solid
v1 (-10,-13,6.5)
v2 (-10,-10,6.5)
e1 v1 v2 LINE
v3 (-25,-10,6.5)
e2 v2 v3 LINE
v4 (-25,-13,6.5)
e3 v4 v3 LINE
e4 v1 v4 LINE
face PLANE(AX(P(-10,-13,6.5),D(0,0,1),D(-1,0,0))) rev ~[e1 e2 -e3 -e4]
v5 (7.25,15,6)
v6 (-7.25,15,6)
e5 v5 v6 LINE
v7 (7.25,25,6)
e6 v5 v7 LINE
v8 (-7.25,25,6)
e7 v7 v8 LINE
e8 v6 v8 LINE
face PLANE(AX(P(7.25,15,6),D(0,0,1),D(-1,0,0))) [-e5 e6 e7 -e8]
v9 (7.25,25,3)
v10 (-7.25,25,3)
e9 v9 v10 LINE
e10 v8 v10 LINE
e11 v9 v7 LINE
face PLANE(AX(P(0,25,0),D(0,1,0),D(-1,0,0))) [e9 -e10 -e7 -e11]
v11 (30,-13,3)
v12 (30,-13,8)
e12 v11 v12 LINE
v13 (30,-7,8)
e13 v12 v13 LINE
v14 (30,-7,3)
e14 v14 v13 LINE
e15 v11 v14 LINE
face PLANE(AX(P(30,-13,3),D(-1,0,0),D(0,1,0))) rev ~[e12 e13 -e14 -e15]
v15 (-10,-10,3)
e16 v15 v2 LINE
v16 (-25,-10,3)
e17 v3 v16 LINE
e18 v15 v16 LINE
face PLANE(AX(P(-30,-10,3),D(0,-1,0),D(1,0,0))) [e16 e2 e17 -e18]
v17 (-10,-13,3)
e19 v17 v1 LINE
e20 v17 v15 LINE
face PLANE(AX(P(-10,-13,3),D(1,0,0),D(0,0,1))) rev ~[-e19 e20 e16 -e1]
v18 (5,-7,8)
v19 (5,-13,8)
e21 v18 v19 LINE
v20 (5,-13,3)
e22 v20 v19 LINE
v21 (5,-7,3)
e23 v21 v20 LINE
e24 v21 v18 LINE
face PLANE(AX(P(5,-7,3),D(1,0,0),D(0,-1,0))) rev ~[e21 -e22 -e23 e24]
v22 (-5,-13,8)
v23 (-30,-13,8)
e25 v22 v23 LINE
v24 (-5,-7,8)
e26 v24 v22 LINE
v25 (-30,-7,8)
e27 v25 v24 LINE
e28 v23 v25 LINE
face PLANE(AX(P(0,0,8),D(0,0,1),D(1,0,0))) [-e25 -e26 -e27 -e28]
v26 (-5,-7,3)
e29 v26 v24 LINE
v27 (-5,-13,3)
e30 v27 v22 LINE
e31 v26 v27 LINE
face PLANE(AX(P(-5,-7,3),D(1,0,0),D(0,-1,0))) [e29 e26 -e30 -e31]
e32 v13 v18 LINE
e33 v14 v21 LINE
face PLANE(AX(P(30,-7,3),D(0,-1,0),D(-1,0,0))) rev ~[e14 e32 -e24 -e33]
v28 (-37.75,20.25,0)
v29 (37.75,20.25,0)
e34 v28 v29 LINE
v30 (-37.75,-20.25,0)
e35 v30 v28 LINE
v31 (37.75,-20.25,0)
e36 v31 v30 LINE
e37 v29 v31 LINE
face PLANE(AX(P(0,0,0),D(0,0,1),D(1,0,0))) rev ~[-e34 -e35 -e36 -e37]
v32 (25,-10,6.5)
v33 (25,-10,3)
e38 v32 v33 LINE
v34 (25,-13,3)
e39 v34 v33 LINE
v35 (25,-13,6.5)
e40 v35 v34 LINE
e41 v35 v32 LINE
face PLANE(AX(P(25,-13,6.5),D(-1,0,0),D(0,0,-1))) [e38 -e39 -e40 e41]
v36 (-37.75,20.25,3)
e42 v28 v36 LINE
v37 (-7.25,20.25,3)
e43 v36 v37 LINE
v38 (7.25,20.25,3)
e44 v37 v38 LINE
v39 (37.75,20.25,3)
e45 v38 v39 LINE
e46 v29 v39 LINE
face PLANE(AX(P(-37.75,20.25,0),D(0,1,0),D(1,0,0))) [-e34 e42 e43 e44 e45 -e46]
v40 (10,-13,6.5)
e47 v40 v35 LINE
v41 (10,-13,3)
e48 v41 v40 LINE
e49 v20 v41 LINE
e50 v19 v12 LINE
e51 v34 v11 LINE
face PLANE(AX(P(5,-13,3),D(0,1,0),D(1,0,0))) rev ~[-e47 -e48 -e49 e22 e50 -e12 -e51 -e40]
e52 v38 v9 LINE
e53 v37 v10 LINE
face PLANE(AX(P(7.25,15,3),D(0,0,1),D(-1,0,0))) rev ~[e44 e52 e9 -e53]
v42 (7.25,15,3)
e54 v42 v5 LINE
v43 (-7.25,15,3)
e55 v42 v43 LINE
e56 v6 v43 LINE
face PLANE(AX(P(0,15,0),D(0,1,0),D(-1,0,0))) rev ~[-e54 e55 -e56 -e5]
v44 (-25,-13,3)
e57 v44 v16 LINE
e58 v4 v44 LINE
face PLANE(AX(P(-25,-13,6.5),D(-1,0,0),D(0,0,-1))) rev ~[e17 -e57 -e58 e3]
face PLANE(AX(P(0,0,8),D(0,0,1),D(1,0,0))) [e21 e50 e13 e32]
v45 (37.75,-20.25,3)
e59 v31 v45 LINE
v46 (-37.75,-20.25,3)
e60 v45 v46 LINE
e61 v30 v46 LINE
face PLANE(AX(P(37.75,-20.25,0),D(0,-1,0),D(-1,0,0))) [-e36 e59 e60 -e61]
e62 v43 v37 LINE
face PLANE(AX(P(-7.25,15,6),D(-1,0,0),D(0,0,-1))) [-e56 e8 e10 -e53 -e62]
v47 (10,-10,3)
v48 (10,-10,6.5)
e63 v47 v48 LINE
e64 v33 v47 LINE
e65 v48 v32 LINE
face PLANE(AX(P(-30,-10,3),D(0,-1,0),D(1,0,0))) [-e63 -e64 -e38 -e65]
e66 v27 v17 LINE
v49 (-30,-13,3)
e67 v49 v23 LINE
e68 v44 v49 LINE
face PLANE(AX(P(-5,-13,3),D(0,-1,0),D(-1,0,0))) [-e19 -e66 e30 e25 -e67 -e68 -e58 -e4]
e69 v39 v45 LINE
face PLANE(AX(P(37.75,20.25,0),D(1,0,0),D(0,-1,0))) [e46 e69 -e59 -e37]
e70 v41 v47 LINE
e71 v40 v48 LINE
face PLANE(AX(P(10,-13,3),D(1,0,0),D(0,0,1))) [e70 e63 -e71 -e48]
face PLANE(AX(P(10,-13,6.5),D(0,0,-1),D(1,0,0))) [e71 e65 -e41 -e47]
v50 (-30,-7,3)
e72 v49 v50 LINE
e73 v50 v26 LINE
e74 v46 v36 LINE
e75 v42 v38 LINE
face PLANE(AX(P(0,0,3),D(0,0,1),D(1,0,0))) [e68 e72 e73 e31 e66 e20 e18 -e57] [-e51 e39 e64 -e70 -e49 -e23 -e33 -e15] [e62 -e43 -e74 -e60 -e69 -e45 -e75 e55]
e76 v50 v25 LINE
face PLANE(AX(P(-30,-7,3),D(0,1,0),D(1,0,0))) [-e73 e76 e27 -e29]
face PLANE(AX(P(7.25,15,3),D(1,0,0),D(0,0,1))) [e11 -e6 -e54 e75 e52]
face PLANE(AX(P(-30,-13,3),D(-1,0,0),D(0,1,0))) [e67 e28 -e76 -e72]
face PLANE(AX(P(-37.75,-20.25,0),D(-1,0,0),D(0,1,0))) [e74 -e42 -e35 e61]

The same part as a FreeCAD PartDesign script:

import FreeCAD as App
import Part
import Sketcher
from FreeCAD import Vector
Q = App.Units.Quantity

doc = App.newDocument("Part")
body = doc.addObject("PartDesign::Body", "Body")

sketch1 = doc.addObject("Sketcher::SketchObject", "Sketch")
body.addObject(sketch1)
sketch1.AttachmentSupport = (doc.XY_Plane, [""])
sketch1.MapMode = "FlatFace"
sketch1.addGeometry(Part.LineSegment(Vector(-38, -20, 0), Vector(38, -20, 0)), False)
sketch1.addGeometry(Part.LineSegment(Vector(38, -20, 0), Vector(38, 20, 0)), False)
sketch1.addGeometry(Part.LineSegment(Vector(38, 20, 0), Vector(-38, 20, 0)), False)
sketch1.addGeometry(Part.LineSegment(Vector(-38, 20, 0), Vector(-38, -20, 0)), False)
sketch1.addConstraint(Sketcher.Constraint("Coincident", 0, 2, 1, 1))
sketch1.addConstraint(Sketcher.Constraint("Coincident", 1, 2, 2, 1))
sketch1.addConstraint(Sketcher.Constraint("Coincident", 2, 2, 3, 1))
sketch1.addConstraint(Sketcher.Constraint("Coincident", 3, 2, 0, 1))
sketch1.addConstraint(Sketcher.Constraint("Horizontal", 0))
sketch1.addConstraint(Sketcher.Constraint("Vertical", 1))
sketch1.addConstraint(Sketcher.Constraint("Horizontal", 2))
sketch1.addConstraint(Sketcher.Constraint("Vertical", 3))
sketch1.addConstraint(Sketcher.Constraint("Symmetric", 0, 2, 2, 2, -1, 1))
sketch1.addConstraint(Sketcher.Constraint("DistanceX", 0, 1, 0, 2, Q("75.5 mm")))
sketch1.addConstraint(Sketcher.Constraint("DistanceY", 1, 1, 1, 2, Q("40.5 mm")))
pad1 = doc.addObject("PartDesign::Pad", "Pad")
body.addObject(pad1)
pad1.Profile = sketch1
pad1.Length = 3

sketch2 = doc.addObject("Sketcher::SketchObject", "Sketch001")
body.addObject(sketch2)
sketch2.AttachmentSupport = (doc.XZ_Plane, [""])
sketch2.MapMode = "FlatFace"
sketch2.AttachmentOffset = App.Placement(Vector(0, 0, -15), App.Rotation())
sketch2.addGeometry(Part.LineSegment(Vector(7.2, 6, 0), Vector(7.2, 3, 0)), False)
sketch2.addGeometry(Part.LineSegment(Vector(7.2, 3, 0), Vector(-7.2, 3, 0)), False)
sketch2.addGeometry(Part.LineSegment(Vector(-7.2, 3, 0), Vector(-7.2, 6, 0)), False)
sketch2.addGeometry(Part.LineSegment(Vector(-7.2, 6, 0), Vector(7.2, 6, 0)), False)
sketch2.addConstraint(Sketcher.Constraint("Coincident", 0, 2, 1, 1))
sketch2.addConstraint(Sketcher.Constraint("Coincident", 1, 2, 2, 1))
sketch2.addConstraint(Sketcher.Constraint("Coincident", 2, 2, 3, 1))
sketch2.addConstraint(Sketcher.Constraint("Coincident", 3, 2, 0, 1))
sketch2.addConstraint(Sketcher.Constraint("Vertical", 0))
sketch2.addConstraint(Sketcher.Constraint("Horizontal", 1))
sketch2.addConstraint(Sketcher.Constraint("Vertical", 2))
sketch2.addConstraint(Sketcher.Constraint("Horizontal", 3))
sketch2.addConstraint(Sketcher.Constraint("DistanceY", 0, 2, 0, 1, Q("3 mm")))
sketch2.addConstraint(Sketcher.Constraint("DistanceX", 1, 2, 1, 1, Q("14.5 mm")))
sketch2.addConstraint(Sketcher.Constraint("DistanceY", -1, 1, 0, 2, Q("3 mm")))
sketch2.addConstraint(Sketcher.Constraint("DistanceX", -1, 1, 0, 2, Q("7.25 mm")))
pad2 = doc.addObject("PartDesign::Pad", "Pad001")
body.addObject(pad2)
pad2.Profile = sketch2
pad2.Length = 10
pad2.Reversed = True

sketch3 = doc.addObject("Sketcher::SketchObject", "Sketch002")
body.addObject(sketch3)
sketch3.AttachmentSupport = (doc.XY_Plane, [""])
sketch3.MapMode = "FlatFace"
sketch3.AttachmentOffset = App.Placement(Vector(0, 0, 3), App.Rotation())
sketch3.addGeometry(Part.LineSegment(Vector(-5, -7, 0), Vector(-30, -7, 0)), False)
sketch3.addGeometry(Part.LineSegment(Vector(-30, -7, 0), Vector(-30, -13, 0)), False)
sketch3.addGeometry(Part.LineSegment(Vector(-30, -13, 0), Vector(-5, -13, 0)), False)
sketch3.addGeometry(Part.LineSegment(Vector(-5, -13, 0), Vector(-5, -7, 0)), False)
sketch3.addGeometry(Part.LineSegment(Vector(30, -13, 0), Vector(30, -7, 0)), False)
sketch3.addGeometry(Part.LineSegment(Vector(30, -7, 0), Vector(5, -7, 0)), False)
sketch3.addGeometry(Part.LineSegment(Vector(5, -7, 0), Vector(5, -13, 0)), False)
sketch3.addGeometry(Part.LineSegment(Vector(5, -13, 0), Vector(30, -13, 0)), False)
sketch3.addConstraint(Sketcher.Constraint("Coincident", 0, 2, 1, 1))
sketch3.addConstraint(Sketcher.Constraint("Coincident", 1, 2, 2, 1))
sketch3.addConstraint(Sketcher.Constraint("Coincident", 2, 2, 3, 1))
sketch3.addConstraint(Sketcher.Constraint("Coincident", 3, 2, 0, 1))
sketch3.addConstraint(Sketcher.Constraint("Coincident", 4, 2, 5, 1))
sketch3.addConstraint(Sketcher.Constraint("Coincident", 5, 2, 6, 1))
sketch3.addConstraint(Sketcher.Constraint("Coincident", 6, 2, 7, 1))
sketch3.addConstraint(Sketcher.Constraint("Coincident", 7, 2, 4, 1))
sketch3.addConstraint(Sketcher.Constraint("Horizontal", 0))
sketch3.addConstraint(Sketcher.Constraint("Vertical", 1))
sketch3.addConstraint(Sketcher.Constraint("Horizontal", 2))
sketch3.addConstraint(Sketcher.Constraint("Vertical", 3))
sketch3.addConstraint(Sketcher.Constraint("Vertical", 4))
sketch3.addConstraint(Sketcher.Constraint("Horizontal", 5))
sketch3.addConstraint(Sketcher.Constraint("Vertical", 6))
sketch3.addConstraint(Sketcher.Constraint("Horizontal", 7))
sketch3.addConstraint(Sketcher.Constraint("Symmetric", 0, 2, 4, 2, -2))
sketch3.addConstraint(Sketcher.Constraint("Symmetric", 2, 2, 6, 2, -2))
sketch3.addConstraint(Sketcher.Constraint("DistanceX", 0, 2, 0, 1, Q("25 mm")))
sketch3.addConstraint(Sketcher.Constraint("DistanceY", 1, 2, 1, 1, Q("6 mm")))
sketch3.addConstraint(Sketcher.Constraint("DistanceY", 0, 2, -1, 1, Q("7 mm")))
sketch3.addConstraint(Sketcher.Constraint("DistanceX", 2, 2, -1, 1, Q("5 mm")))
pad3 = doc.addObject("PartDesign::Pad", "Pad002")
body.addObject(pad3)
pad3.Profile = sketch3
pad3.Length = 5

sketch4 = doc.addObject("Sketcher::SketchObject", "Sketch003")
body.addObject(sketch4)
sketch4.AttachmentSupport = (doc.XZ_Plane, [""])
sketch4.MapMode = "FlatFace"
sketch4.AttachmentOffset = App.Placement(Vector(0, 0, 13), App.Rotation())
sketch4.addGeometry(Part.LineSegment(Vector(-25, 3, 0), Vector(-10, 3, 0)), False)
sketch4.addGeometry(Part.LineSegment(Vector(-10, 3, 0), Vector(-10, 6.5, 0)), False)
sketch4.addGeometry(Part.LineSegment(Vector(-10, 6.5, 0), Vector(-25, 6.5, 0)), False)
sketch4.addGeometry(Part.LineSegment(Vector(-25, 6.5, 0), Vector(-25, 3, 0)), False)
sketch4.addGeometry(Part.LineSegment(Vector(10, 3, 0), Vector(25, 3, 0)), False)
sketch4.addGeometry(Part.LineSegment(Vector(25, 3, 0), Vector(25, 6.5, 0)), False)
sketch4.addGeometry(Part.LineSegment(Vector(25, 6.5, 0), Vector(10, 6.5, 0)), False)
sketch4.addGeometry(Part.LineSegment(Vector(10, 6.5, 0), Vector(10, 3, 0)), False)
sketch4.addConstraint(Sketcher.Constraint("Coincident", 0, 2, 1, 1))
sketch4.addConstraint(Sketcher.Constraint("Coincident", 1, 2, 2, 1))
sketch4.addConstraint(Sketcher.Constraint("Coincident", 2, 2, 3, 1))
sketch4.addConstraint(Sketcher.Constraint("Coincident", 3, 2, 0, 1))
sketch4.addConstraint(Sketcher.Constraint("Coincident", 4, 2, 5, 1))
sketch4.addConstraint(Sketcher.Constraint("Coincident", 5, 2, 6, 1))
sketch4.addConstraint(Sketcher.Constraint("Coincident", 6, 2, 7, 1))
sketch4.addConstraint(Sketcher.Constraint("Coincident", 7, 2, 4, 1))
sketch4.addConstraint(Sketcher.Constraint("Horizontal", 0))
sketch4.addConstraint(Sketcher.Constraint("Vertical", 1))
sketch4.addConstraint(Sketcher.Constraint("Horizontal", 2))
sketch4.addConstraint(Sketcher.Constraint("Vertical", 3))
sketch4.addConstraint(Sketcher.Constraint("Horizontal", 4))
sketch4.addConstraint(Sketcher.Constraint("Vertical", 5))
sketch4.addConstraint(Sketcher.Constraint("Horizontal", 6))
sketch4.addConstraint(Sketcher.Constraint("Vertical", 7))
sketch4.addConstraint(Sketcher.Constraint("Symmetric", 3, 2, 4, 2, -2))
sketch4.addConstraint(Sketcher.Constraint("Symmetric", 1, 2, 6, 2, -2))
sketch4.addConstraint(Sketcher.Constraint("DistanceX", 0, 1, 0, 2, Q("15 mm")))
sketch4.addConstraint(Sketcher.Constraint("DistanceY", 1, 1, 1, 2, Q("3.5 mm")))
sketch4.addConstraint(Sketcher.Constraint("DistanceX", 0, 2, -1, 1, Q("10 mm")))
sketch4.addConstraint(Sketcher.Constraint("DistanceY", -1, 1, 0, 2, Q("3 mm")))
pocket1 = doc.addObject("PartDesign::Pocket", "Pocket")
body.addObject(pocket1)
pocket1.Profile = sketch4
pocket1.Length = 3

doc.recompute()
